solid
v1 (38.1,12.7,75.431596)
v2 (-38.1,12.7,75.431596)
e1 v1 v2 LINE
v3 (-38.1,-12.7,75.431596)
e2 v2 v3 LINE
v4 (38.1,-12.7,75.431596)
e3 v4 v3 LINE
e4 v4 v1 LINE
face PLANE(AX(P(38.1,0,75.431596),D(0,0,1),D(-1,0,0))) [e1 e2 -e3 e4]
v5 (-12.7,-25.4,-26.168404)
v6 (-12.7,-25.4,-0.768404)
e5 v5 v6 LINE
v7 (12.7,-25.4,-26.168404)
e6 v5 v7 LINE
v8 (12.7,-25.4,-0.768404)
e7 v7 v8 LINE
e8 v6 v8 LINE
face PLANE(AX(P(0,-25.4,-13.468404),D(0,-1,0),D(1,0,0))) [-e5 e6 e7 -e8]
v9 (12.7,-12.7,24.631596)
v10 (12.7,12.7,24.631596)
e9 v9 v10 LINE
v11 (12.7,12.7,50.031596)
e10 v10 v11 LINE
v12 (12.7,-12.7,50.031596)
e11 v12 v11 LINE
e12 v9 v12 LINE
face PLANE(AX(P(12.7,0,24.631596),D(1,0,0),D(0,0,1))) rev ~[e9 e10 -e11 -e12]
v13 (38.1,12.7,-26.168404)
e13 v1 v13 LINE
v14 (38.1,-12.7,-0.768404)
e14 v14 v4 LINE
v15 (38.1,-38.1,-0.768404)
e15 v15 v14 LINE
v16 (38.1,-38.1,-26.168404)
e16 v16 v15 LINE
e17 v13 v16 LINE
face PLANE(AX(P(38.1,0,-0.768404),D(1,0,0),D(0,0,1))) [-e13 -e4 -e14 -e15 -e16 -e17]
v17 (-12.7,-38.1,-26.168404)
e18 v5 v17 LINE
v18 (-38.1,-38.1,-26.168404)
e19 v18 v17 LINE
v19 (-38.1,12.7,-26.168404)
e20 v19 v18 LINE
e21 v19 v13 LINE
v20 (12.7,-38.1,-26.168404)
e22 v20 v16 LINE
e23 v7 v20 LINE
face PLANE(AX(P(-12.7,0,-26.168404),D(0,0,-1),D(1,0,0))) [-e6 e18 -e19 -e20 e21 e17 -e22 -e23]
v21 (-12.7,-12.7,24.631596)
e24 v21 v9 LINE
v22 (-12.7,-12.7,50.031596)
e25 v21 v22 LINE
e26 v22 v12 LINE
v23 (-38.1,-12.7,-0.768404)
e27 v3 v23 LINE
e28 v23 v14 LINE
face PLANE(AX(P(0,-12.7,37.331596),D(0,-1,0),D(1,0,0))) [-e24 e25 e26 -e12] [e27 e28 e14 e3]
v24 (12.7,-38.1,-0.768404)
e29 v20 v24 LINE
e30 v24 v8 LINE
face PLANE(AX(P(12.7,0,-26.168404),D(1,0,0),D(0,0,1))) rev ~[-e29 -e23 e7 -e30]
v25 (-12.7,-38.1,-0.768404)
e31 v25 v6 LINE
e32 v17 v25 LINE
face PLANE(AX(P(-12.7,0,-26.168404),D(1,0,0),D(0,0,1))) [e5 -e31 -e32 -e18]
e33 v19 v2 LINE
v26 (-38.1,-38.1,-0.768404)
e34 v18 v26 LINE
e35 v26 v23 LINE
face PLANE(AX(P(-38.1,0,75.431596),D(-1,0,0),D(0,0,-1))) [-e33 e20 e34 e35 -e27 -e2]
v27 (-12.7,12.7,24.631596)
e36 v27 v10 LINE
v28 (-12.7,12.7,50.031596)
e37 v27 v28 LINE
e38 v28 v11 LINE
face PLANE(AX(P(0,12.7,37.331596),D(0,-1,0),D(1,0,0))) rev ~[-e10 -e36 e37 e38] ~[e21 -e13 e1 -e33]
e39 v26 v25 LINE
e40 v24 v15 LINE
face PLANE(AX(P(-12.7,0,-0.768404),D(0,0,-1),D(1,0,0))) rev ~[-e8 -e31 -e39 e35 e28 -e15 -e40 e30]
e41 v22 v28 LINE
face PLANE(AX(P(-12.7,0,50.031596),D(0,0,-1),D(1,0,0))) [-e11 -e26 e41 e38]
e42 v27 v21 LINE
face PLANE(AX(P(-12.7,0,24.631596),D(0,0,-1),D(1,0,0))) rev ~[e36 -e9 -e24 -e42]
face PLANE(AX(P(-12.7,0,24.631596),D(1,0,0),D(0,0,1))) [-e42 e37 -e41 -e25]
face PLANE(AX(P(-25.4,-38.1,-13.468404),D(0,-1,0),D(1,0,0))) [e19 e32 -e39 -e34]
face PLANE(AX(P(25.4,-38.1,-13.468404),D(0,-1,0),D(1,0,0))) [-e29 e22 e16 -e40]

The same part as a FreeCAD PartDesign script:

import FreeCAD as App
import Part
import Sketcher
Q = App.Units.Quantity

doc = App.newDocument("Part")
body = doc.addObject("PartDesign::Body", "Body")
body.AllowCompound = True

# Sketch on XZ plane
sketch1 = doc.addObject("Sketcher::SketchObject", "Sketch")
body.addObject(sketch1)
sketch1.AttachmentSupport = (doc.XZ_Plane, [""])
sketch1.MapMode = "FlatFace"
sketch1.addGeometry(Part.LineSegment(App.Vector(-38, -1, 0), App.Vector(-38, -26, 0)), False)
sketch1.addGeometry(Part.LineSegment(App.Vector(-38, -26, 0), App.Vector(-13, -26, 0)), False)
sketch1.addGeometry(Part.LineSegment(App.Vector(-13, -26, 0), App.Vector(-13, -1, 0)), False)
sketch1.addGeometry(Part.LineSegment(App.Vector(-13, -1, 0), App.Vector(-38, -1, 0)), False)
sketch1.addGeometry(Part.LineSegment(App.Vector(13, -1, 0), App.Vector(13, -26, 0)), False)
sketch1.addGeometry(Part.LineSegment(App.Vector(13, -26, 0), App.Vector(38, -26, 0)), False)
sketch1.addGeometry(Part.LineSegment(App.Vector(38, -26, 0), App.Vector(38, -1, 0)), False)
sketch1.addGeometry(Part.LineSegment(App.Vector(38, -1, 0), App.Vector(13, -1, 0)), False)
sketch1.addConstraint(Sketcher.Constraint("Coincident", 0, 2, 1, 1))
sketch1.addConstraint(Sketcher.Constraint("Coincident", 1, 2, 2, 1))
sketch1.addConstraint(Sketcher.Constraint("Coincident", 2, 2, 3, 1))
sketch1.addConstraint(Sketcher.Constraint("Coincident", 3, 2, 0, 1))
sketch1.addConstraint(Sketcher.Constraint("Coincident", 4, 2, 5, 1))
sketch1.addConstraint(Sketcher.Constraint("Coincident", 5, 2, 6, 1))
sketch1.addConstraint(Sketcher.Constraint("Coincident", 6, 2, 7, 1))
sketch1.addConstraint(Sketcher.Constraint("Coincident", 7, 2, 4, 1))
sketch1.addConstraint(Sketcher.Constraint("Vertical", 0))
sketch1.addConstraint(Sketcher.Constraint("Horizontal", 1))
sketch1.addConstraint(Sketcher.Constraint("Vertical", 2))
sketch1.addConstraint(Sketcher.Constraint("Horizontal", 3))
sketch1.addConstraint(Sketcher.Constraint("Vertical", 4))
sketch1.addConstraint(Sketcher.Constraint("Horizontal", 5))
sketch1.addConstraint(Sketcher.Constraint("Vertical", 6))
sketch1.addConstraint(Sketcher.Constraint("Horizontal", 7))
sketch1.addConstraint(Sketcher.Constraint("Symmetric", 1, 2, 4, 2, -2))
sketch1.addConstraint(Sketcher.Constraint("Symmetric", 3, 2, 6, 2, -2))
sketch1.addConstraint(Sketcher.Constraint("Equal", 7, 0))
sketch1.addConstraint(Sketcher.Constraint("DistanceX", 1, 1, 1, 2, Q("1 in")))
sketch1.addConstraint(Sketcher.Constraint("DistanceX", 1, 2, 4, 2, Q("1 in")))
sketch1.addConstraint(Sketcher.Constraint("DistanceY", 0, 2, -1, 1, Q("26.168404 mm")))
pad1 = doc.addObject("PartDesign::Pad", "Pad")
body.addObject(pad1)
pad1.Profile = sketch1
pad1.Length = Q("1.5 in")

# Sketch on XZ plane
sketch2 = doc.addObject("Sketcher::SketchObject", "Sketch001")
body.addObject(sketch2)
sketch2.AttachmentSupport = (doc.XZ_Plane, [""])
sketch2.MapMode = "FlatFace"
sketch2.addGeometry(Part.LineSegment(App.Vector(13, -1, 0), App.Vector(13, -26, 0)), False)
sketch2.addGeometry(Part.LineSegment(App.Vector(13, -26, 0), App.Vector(38, -26, 0)), False)
sketch2.addGeometry(Part.LineSegment(App.Vector(38, -26, 0), App.Vector(38, -1, 0)), False)
sketch2.addGeometry(Part.LineSegment(App.Vector(38, -1, 0), App.Vector(13, -1, 0)), False)
sketch2.addGeometry(Part.LineSegment(App.Vector(-38, -1, 0), App.Vector(-38, -26, 0)), False)
sketch2.addGeometry(Part.LineSegment(App.Vector(-38, -26, 0), App.Vector(-13, -26, 0)), False)
sketch2.addGeometry(Part.LineSegment(App.Vector(-13, -26, 0), App.Vector(-13, -1, 0)), False)
sketch2.addGeometry(Part.LineSegment(App.Vector(-13, -1, 0), App.Vector(-38, -1, 0)), False)
sketch2.addConstraint(Sketcher.Constraint("Coincident", 0, 2, 1, 1))
sketch2.addConstraint(Sketcher.Constraint("Coincident", 1, 2, 2, 1))
sketch2.addConstraint(Sketcher.Constraint("Coincident", 2, 2, 3, 1))
sketch2.addConstraint(Sketcher.Constraint("Coincident", 3, 2, 0, 1))
sketch2.addConstraint(Sketcher.Constraint("Coincident", 4, 2, 5, 1))
sketch2.addConstraint(Sketcher.Constraint("Coincident", 5, 2, 6, 1))
sketch2.addConstraint(Sketcher.Constraint("Coincident", 6, 2, 7, 1))
sketch2.addConstraint(Sketcher.Constraint("Coincident", 7, 2, 4, 1))
sketch2.addConstraint(Sketcher.Constraint("Vertical", 0))
sketch2.addConstraint(Sketcher.Constraint("Horizontal", 1))
sketch2.addConstraint(Sketcher.Constraint("Vertical", 2))
sketch2.addConstraint(Sketcher.Constraint("Horizontal", 3))
sketch2.addConstraint(Sketcher.Constraint("Vertical", 4))
sketch2.addConstraint(Sketcher.Constraint("Horizontal", 5))
sketch2.addConstraint(Sketcher.Constraint("Vertical", 6))
sketch2.addConstraint(Sketcher.Constraint("Horizontal", 7))
sketch2.addConstraint(Sketcher.Constraint("Symmetric", 1, 2, 4, 2, -2))
sketch2.addConstraint(Sketcher.Constraint("Symmetric", 3, 2, 6, 2, -2))
sketch2.addConstraint(Sketcher.Constraint("Equal", 7, 0))
sketch2.addConstraint(Sketcher.Constraint("DistanceX", 1, 1, 1, 2, Q("1 in")))
sketch2.addConstraint(Sketcher.Constraint("DistanceX", 4, 2, 0, 2, Q("2 in")))
sketch2.addConstraint(Sketcher.Constraint("DistanceY", 0, 2, -1, 1, Q("26.168404 mm")))
pad2 = doc.addObject("PartDesign::Pad", "Pad001")
body.addObject(pad2)
pad2.Profile = sketch2
pad2.Length = Q("0.5 in")
pad2.Reversed = True

# Sketch on XZ plane
sketch3 = doc.addObject("Sketcher::SketchObject", "Sketch002")
body.addObject(sketch3)
sketch3.AttachmentSupport = (doc.XZ_Plane, [""])
sketch3.MapMode = "FlatFace"
sketch3.addGeometry(Part.LineSegment(App.Vector(-13, -1, 0), App.Vector(-13, -26, 0)), False)
sketch3.addGeometry(Part.LineSegment(App.Vector(-13, -26, 0), App.Vector(13, -26, 0)), False)
sketch3.addGeometry(Part.LineSegment(App.Vector(13, -26, 0), App.Vector(13, -1, 0)), False)
sketch3.addGeometry(Part.LineSegment(App.Vector(13, -1, 0), App.Vector(-13, -1, 0)), False)
sketch3.addConstraint(Sketcher.Constraint("Coincident", 0, 2, 1, 1))
sketch3.addConstraint(Sketcher.Constraint("Coincident", 1, 2, 2, 1))
sketch3.addConstraint(Sketcher.Constraint("Coincident", 2, 2, 3, 1))
sketch3.addConstraint(Sketcher.Constraint("Coincident", 3, 2, 0, 1))
sketch3.addConstraint(Sketcher.Constraint("Vertical", 0))
sketch3.addConstraint(Sketcher.Constraint("Horizontal", 1))
sketch3.addConstraint(Sketcher.Constraint("Vertical", 2))
sketch3.addConstraint(Sketcher.Constraint("Horizontal", 3))
sketch3.addConstraint(Sketcher.Constraint("Equal", 3, 0))
sketch3.addConstraint(Sketcher.Constraint("DistanceX", 1, 1, 1, 2, Q("1 in")))
sketch3.addConstraint(Sketcher.Constraint("DistanceX", 0, 2, -1, 1, Q("0.5 in")))
sketch3.addConstraint(Sketcher.Constraint("DistanceY", 0, 2, -1, 1, Q("26.168404 mm")))
pad3 = doc.addObject("PartDesign::Pad", "Pad002")
body.addObject(pad3)
pad3.Profile = sketch3
pad3.Length = Q("1 in")

# Sketch on XZ plane
sketch4 = doc.addObject("Sketcher::SketchObject", "Sketch003")
body.addObject(sketch4)
sketch4.AttachmentSupport = (doc.XZ_Plane, [""])
sketch4.MapMode = "FlatFace"
sketch4.addGeometry(Part.LineSegment(App.Vector(-13, -1, 0), App.Vector(-13, -26, 0)), False)
sketch4.addGeometry(Part.LineSegment(App.Vector(-13, -26, 0), App.Vector(13, -26, 0)), False)
sketch4.addGeometry(Part.LineSegment(App.Vector(13, -26, 0), App.Vector(13, -1, 0)), False)
sketch4.addGeometry(Part.LineSegment(App.Vector(13, -1, 0), App.Vector(-13, -1, 0)), False)
sketch4.addConstraint(Sketcher.Constraint("Coincident", 0, 2, 1, 1))
sketch4.addConstraint(Sketcher.Constraint("Coincident", 1, 2, 2, 1))
sketch4.addConstraint(Sketcher.Constraint("Coincident", 2, 2, 3, 1))
sketch4.addConstraint(Sketcher.Constraint("Coincident", 3, 2, 0, 1))
sketch4.addConstraint(Sketcher.Constraint("Vertical", 0))
sketch4.addConstraint(Sketcher.Constraint("Horizontal", 1))
sketch4.addConstraint(Sketcher.Constraint("Vertical", 2))
sketch4.addConstraint(Sketcher.Constraint("Horizontal", 3))
sketch4.addConstraint(Sketcher.Constraint("Equal", 3, 0))
sketch4.addConstraint(Sketcher.Constraint("DistanceX", 1, 1, 1, 2, Q("1 in")))
sketch4.addConstraint(Sketcher.Constraint("DistanceX", 0, 2, -1, 1, Q("0.5 in")))
sketch4.addConstraint(Sketcher.Constraint("DistanceY", 0, 2, -1, 1, Q("26.168404 mm")))
pad4 = doc.addObject("PartDesign::Pad", "Pad003")
body.addObject(pad4)
pad4.Profile = sketch4
pad4.Length = Q("0.5 in")
pad4.Reversed = True

# Sketch on XZ plane
sketch5 = doc.addObject("Sketcher::SketchObject", "Sketch004")
body.addObject(sketch5)
sketch5.AttachmentSupport = (doc.XZ_Plane, [""])
sketch5.MapMode = "FlatFace"
sketch5.addGeometry(Part.LineSegment(App.Vector(38, 75, 0), App.Vector(-38, 75, 0)), False)
sketch5.addGeometry(Part.LineSegment(App.Vector(-38, 75, 0), App.Vector(-38, -1, 0)), False)
sketch5.addGeometry(Part.LineSegment(App.Vector(-38, -1, 0), App.Vector(38, -1, 0)), False)
sketch5.addGeometry(Part.LineSegment(App.Vector(38, -1, 0), App.Vector(38, 75, 0)), False)
sketch5.addGeometry(Part.LineSegment(App.Vector(13, 25, 0), App.Vector(-13, 25, 0)), False)
sketch5.addGeometry(Part.LineSegment(App.Vector(-13, 25, 0), App.Vector(-13, 50, 0)), False)
sketch5.addGeometry(Part.LineSegment(App.Vector(-13, 50, 0), App.Vector(13, 50, 0)), False)
sketch5.addGeometry(Part.LineSegment(App.Vector(13, 50, 0), App.Vector(13, 25, 0)), False)
sketch5.addConstraint(Sketcher.Constraint("Coincident", 0, 2, 1, 1))
sketch5.addConstraint(Sketcher.Constraint("Coincident", 1, 2, 2, 1))
sketch5.addConstraint(Sketcher.Constraint("Coincident", 2, 2, 3, 1))
sketch5.addConstraint(Sketcher.Constraint("Coincident", 3, 2, 0, 1))
sketch5.addConstraint(Sketcher.Constraint("Coincident", 4, 2, 5, 1))
sketch5.addConstraint(Sketcher.Constraint("Coincident", 5, 2, 6, 1))
sketch5.addConstraint(Sketcher.Constraint("Coincident", 6, 2, 7, 1))
sketch5.addConstraint(Sketcher.Constraint("Coincident", 7, 2, 4, 1))
sketch5.addConstraint(Sketcher.Constraint("Horizontal", 0))
sketch5.addConstraint(Sketcher.Constraint("Vertical", 1))
sketch5.addConstraint(Sketcher.Constraint("Horizontal", 2))
sketch5.addConstraint(Sketcher.Constraint("Vertical", 3))
sketch5.addConstraint(Sketcher.Constraint("Horizontal", 4))
sketch5.addConstraint(Sketcher.Constraint("Vertical", 5))
sketch5.addConstraint(Sketcher.Constraint("Horizontal", 6))
sketch5.addConstraint(Sketcher.Constraint("Vertical", 7))
sketch5.addConstraint(Sketcher.Constraint("Equal", 2, 1))
sketch5.addConstraint(Sketcher.Constraint("Equal", 6, 5))
sketch5.addConstraint(Sketcher.Constraint("DistanceX", 0, 2, 0, 1, Q("3 in")))
sketch5.addConstraint(Sketcher.Constraint("DistanceX", 4, 2, 4, 1, Q("1 in")))
sketch5.addConstraint(Sketcher.Constraint("DistanceX", 1, 2, 4, 2, Q("1 in")))
sketch5.addConstraint(Sketcher.Constraint("DistanceY", 1, 2, 4, 2, Q("1 in")))
sketch5.addConstraint(Sketcher.Constraint("DistanceX", 0, 2, -1, 1, Q("1.5 in")))
sketch5.addConstraint(Sketcher.Constraint("DistanceY", -1, 1, 0, 2, Q("75.431596 mm")))
pad5 = doc.addObject("PartDesign::Pad", "Pad004")
body.addObject(pad5)
pad5.Profile = sketch5
pad5.Length = Q("1 in")
pad5.Midplane = True

doc.recompute()
